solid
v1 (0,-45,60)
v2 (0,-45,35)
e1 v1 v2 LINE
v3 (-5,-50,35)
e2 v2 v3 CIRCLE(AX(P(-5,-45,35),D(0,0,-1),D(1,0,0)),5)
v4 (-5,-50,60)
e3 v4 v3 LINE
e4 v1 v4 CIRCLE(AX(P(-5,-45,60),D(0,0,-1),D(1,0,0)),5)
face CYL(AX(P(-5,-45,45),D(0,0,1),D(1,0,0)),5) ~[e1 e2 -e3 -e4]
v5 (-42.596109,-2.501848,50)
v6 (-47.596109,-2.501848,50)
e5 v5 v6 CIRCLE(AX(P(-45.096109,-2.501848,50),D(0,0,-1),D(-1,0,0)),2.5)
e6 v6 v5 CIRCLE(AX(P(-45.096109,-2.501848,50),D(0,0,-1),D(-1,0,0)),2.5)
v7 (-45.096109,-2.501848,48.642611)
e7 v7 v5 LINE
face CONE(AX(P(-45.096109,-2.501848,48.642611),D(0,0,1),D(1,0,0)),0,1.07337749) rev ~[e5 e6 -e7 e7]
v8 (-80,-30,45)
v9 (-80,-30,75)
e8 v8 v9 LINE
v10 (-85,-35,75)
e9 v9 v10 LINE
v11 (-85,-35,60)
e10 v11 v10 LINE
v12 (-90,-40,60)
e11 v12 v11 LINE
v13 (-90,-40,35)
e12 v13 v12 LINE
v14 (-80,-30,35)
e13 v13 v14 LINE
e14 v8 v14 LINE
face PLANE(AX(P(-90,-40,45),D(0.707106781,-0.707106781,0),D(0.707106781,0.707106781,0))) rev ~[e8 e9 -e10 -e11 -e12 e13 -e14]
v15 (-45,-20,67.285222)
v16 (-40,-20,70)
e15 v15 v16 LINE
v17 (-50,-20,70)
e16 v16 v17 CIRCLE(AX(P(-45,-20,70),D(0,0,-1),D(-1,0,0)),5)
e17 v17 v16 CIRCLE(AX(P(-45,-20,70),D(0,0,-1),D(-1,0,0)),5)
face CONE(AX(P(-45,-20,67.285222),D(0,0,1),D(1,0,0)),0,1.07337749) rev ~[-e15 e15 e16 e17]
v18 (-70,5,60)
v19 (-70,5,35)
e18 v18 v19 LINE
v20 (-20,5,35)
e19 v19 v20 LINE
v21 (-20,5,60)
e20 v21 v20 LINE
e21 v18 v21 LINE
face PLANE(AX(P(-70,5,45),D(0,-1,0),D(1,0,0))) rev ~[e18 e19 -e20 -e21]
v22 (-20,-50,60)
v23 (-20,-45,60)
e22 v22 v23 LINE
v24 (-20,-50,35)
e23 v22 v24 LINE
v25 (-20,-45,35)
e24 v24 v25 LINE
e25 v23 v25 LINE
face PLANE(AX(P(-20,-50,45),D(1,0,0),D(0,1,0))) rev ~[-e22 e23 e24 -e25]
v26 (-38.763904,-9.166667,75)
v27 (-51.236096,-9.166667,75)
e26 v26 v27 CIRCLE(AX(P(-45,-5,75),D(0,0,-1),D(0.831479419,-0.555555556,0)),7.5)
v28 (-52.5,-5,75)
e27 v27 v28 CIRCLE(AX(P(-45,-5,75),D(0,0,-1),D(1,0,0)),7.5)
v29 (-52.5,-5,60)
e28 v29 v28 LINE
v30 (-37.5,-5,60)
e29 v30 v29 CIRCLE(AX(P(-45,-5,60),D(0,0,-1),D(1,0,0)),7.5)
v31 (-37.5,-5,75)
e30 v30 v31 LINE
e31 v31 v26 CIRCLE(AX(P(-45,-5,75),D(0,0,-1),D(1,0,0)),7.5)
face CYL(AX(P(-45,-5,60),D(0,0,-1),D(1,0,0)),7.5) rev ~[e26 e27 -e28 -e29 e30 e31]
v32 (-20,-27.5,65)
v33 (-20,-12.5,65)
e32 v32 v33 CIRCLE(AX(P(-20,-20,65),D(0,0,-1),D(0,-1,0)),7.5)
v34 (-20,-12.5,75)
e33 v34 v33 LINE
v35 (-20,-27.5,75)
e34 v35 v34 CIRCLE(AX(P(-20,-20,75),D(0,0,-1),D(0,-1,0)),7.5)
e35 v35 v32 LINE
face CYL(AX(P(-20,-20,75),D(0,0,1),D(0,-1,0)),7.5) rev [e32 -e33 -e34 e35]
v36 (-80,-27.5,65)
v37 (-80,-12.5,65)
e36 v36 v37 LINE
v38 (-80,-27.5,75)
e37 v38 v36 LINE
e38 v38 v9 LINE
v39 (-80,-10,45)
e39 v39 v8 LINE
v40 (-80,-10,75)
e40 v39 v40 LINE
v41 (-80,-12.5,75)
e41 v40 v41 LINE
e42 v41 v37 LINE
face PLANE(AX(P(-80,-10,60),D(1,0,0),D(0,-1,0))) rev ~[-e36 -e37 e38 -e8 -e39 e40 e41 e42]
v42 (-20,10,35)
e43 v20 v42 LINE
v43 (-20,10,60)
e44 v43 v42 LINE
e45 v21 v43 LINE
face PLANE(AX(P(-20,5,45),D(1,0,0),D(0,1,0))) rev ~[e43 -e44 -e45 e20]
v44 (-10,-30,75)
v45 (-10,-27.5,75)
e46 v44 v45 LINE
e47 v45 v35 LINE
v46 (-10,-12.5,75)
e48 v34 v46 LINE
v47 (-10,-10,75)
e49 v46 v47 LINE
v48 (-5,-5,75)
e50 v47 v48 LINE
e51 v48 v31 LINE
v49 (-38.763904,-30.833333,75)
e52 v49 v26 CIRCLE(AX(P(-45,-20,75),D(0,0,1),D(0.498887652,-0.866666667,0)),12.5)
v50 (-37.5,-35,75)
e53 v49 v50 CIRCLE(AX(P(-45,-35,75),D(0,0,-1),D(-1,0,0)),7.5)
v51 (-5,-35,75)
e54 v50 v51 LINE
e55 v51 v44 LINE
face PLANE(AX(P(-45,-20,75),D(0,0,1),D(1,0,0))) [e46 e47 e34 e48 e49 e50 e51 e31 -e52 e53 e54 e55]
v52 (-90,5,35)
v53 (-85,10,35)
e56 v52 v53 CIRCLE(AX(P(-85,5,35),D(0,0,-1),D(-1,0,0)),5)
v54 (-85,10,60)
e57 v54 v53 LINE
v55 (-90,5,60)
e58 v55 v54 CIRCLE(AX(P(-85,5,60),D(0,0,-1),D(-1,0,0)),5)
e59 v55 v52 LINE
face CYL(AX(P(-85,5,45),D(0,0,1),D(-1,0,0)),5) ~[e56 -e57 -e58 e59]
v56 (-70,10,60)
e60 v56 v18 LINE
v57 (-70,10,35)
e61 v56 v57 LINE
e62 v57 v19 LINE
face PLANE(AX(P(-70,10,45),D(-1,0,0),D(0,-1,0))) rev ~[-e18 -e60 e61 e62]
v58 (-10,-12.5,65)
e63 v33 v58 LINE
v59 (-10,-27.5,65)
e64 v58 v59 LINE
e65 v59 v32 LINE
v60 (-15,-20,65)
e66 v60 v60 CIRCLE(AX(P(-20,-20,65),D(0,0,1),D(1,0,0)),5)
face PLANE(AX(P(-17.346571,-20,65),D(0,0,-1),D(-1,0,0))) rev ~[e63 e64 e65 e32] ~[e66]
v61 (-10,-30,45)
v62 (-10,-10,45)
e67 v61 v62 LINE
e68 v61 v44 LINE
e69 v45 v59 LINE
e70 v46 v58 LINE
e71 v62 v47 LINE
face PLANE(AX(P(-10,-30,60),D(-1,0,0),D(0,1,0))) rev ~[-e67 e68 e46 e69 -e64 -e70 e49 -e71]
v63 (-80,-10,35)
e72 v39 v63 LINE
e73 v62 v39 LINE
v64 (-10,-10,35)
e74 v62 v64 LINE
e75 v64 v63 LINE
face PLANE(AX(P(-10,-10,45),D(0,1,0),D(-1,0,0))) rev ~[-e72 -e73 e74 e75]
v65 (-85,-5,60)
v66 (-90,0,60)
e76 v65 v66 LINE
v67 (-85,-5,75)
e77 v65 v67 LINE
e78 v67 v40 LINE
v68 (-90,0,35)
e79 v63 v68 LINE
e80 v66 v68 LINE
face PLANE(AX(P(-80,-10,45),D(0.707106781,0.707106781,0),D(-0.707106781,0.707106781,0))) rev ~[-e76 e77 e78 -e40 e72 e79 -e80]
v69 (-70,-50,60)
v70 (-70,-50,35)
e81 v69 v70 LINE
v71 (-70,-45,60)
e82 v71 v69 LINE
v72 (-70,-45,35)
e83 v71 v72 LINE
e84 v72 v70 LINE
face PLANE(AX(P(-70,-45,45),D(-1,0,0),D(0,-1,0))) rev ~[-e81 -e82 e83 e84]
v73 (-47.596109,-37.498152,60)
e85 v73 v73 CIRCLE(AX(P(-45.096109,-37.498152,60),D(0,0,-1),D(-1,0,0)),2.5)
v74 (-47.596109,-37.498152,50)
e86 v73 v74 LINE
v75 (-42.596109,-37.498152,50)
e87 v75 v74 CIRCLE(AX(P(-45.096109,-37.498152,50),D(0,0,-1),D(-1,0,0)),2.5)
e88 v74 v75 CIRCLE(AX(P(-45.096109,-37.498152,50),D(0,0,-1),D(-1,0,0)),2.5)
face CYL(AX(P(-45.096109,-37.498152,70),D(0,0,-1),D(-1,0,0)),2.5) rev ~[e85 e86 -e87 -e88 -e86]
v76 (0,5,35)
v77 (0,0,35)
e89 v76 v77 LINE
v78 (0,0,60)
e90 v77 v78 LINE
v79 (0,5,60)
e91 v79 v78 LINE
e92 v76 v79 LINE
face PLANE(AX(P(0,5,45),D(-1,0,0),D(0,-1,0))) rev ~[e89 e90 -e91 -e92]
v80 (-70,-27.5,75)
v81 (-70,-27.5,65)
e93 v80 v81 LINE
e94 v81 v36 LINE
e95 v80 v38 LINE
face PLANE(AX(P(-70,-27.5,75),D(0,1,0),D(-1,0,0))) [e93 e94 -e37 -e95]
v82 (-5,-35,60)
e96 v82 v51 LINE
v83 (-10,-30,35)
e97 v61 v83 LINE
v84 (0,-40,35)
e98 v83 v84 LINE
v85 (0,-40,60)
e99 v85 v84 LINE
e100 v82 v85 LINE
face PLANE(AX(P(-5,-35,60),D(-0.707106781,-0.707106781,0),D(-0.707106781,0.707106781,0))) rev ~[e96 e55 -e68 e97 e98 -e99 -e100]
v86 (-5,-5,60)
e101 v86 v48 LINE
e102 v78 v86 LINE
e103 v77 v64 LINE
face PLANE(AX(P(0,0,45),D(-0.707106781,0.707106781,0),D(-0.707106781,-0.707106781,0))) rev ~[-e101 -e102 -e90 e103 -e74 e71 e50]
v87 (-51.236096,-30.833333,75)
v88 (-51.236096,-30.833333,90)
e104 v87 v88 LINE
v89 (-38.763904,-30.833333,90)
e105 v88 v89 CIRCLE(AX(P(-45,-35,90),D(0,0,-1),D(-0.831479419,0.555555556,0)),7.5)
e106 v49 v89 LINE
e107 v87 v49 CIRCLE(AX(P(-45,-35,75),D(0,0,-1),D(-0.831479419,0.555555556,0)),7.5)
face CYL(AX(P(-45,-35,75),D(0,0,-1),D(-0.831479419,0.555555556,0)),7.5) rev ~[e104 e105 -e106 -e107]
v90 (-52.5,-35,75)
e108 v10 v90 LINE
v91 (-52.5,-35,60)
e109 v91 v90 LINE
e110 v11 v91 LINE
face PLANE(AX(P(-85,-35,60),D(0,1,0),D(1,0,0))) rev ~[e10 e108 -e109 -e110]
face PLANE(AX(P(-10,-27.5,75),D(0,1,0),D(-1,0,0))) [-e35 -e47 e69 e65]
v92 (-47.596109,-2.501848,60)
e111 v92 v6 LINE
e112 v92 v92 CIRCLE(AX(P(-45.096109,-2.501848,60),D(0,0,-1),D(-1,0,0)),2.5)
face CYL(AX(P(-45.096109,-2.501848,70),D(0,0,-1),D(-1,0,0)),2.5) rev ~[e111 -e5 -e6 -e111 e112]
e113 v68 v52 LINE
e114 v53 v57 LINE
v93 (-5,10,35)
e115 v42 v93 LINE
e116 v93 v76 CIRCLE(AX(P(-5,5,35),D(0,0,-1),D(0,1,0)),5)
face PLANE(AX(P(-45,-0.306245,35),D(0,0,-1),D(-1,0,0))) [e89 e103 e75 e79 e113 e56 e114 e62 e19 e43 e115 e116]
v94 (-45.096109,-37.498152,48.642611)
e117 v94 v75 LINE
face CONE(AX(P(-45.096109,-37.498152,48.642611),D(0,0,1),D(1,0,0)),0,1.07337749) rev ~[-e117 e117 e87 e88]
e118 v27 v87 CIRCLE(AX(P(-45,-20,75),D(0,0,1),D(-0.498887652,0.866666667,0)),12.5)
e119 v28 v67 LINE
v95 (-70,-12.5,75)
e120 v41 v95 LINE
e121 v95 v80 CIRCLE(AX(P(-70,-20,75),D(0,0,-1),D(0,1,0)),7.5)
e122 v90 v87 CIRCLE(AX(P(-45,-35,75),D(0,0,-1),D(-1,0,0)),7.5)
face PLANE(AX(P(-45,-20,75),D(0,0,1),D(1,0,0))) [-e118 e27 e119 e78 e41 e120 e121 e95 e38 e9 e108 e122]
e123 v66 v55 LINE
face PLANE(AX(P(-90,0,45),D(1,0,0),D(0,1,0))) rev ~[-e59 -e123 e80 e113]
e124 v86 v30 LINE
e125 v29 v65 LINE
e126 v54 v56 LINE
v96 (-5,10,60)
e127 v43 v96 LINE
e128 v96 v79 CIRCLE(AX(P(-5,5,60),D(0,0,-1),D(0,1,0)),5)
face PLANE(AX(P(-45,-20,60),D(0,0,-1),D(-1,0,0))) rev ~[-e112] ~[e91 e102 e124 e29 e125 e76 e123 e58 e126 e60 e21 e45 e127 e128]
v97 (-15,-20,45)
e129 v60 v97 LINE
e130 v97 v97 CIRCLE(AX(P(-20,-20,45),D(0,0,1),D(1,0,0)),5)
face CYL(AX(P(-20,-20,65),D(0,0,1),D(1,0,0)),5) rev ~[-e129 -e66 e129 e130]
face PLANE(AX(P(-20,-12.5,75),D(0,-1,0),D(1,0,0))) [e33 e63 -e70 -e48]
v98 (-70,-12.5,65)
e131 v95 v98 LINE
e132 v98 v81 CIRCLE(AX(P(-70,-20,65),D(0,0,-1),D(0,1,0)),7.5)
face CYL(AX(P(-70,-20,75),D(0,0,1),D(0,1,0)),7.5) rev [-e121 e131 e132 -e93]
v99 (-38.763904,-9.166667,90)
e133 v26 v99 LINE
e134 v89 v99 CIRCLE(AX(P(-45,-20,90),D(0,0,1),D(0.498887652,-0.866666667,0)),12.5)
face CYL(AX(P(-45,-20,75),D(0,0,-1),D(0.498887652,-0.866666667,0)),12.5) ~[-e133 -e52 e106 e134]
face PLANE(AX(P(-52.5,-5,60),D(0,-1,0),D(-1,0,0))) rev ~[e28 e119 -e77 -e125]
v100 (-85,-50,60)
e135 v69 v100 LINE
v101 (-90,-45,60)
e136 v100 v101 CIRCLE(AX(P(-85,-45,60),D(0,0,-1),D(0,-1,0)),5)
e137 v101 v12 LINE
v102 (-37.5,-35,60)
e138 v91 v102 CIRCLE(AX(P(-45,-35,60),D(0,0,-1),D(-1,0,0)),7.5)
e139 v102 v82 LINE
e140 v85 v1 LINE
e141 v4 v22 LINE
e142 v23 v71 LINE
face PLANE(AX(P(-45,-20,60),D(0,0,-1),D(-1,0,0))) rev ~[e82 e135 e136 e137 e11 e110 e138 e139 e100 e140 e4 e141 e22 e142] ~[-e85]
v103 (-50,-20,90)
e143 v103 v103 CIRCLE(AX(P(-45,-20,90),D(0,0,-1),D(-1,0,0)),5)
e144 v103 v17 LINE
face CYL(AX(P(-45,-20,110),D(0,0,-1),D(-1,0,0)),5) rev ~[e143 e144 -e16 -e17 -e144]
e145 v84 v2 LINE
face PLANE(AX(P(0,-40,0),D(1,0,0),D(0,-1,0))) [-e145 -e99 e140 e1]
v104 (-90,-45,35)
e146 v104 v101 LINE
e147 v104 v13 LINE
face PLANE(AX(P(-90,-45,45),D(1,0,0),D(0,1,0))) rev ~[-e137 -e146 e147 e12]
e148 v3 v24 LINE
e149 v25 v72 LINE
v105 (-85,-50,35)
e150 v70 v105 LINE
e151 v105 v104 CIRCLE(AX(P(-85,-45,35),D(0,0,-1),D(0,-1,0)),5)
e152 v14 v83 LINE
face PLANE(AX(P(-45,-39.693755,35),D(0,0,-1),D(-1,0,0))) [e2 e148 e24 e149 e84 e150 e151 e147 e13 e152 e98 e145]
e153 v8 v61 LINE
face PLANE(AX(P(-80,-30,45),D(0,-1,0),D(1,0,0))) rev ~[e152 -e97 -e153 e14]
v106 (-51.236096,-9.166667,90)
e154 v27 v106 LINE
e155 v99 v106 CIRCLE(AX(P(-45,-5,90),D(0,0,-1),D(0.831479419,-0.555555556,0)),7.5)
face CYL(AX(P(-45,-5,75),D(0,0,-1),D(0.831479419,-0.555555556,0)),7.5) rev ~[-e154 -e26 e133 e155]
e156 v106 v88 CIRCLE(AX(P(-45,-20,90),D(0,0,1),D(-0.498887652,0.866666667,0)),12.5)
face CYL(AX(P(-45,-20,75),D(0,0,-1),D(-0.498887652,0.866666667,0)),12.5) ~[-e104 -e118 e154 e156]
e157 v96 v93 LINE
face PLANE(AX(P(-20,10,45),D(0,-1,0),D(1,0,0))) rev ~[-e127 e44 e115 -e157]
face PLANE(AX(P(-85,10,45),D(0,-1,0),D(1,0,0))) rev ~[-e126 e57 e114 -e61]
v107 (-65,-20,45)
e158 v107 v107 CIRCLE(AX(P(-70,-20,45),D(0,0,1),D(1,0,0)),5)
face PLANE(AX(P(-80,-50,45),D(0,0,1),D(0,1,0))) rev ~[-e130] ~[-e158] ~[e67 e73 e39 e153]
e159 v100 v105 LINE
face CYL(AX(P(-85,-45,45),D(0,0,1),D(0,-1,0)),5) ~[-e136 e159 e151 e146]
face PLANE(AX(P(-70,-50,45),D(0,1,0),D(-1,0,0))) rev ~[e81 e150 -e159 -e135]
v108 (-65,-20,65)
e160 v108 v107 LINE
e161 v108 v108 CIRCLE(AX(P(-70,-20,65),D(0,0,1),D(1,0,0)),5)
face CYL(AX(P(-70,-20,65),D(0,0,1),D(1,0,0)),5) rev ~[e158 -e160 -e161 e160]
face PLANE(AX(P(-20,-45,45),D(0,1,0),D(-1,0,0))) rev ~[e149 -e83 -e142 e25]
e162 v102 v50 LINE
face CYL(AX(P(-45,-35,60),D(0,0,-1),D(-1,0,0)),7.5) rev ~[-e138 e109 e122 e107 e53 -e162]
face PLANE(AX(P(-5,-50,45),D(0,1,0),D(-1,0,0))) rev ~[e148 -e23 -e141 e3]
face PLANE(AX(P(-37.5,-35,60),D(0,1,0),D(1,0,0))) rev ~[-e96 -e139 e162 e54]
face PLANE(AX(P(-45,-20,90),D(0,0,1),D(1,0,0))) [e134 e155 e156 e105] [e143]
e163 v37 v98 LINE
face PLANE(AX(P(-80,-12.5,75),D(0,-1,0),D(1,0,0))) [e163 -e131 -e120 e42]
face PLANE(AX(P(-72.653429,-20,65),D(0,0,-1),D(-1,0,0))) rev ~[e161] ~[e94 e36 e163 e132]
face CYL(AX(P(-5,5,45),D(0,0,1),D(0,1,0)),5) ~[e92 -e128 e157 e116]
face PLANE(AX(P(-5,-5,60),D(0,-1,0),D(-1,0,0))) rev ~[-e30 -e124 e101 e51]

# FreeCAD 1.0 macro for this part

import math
import FreeCAD as App
import Part
import Sketcher
from FreeCAD import Vector
Q = App.Units.Quantity

doc = App.newDocument("Part")
body = doc.addObject("PartDesign::Body", "Body")

# Sketch on XY plane
sketch1 = body.newObject("Sketcher::SketchObject", "Sketch")
sketch1.AttachmentSupport = (doc.getObject("XY_Plane"), [""])
sketch1.MapMode = "FlatFace"
sketch1.addGeometry([
    Part.LineSegment(Vector(-90, 5, 0), Vector(-90, 0, 0)),  # 0
    Part.LineSegment(Vector(-90, 0, 0), Vector(-80, -10, 0)),  # 1
    Part.LineSegment(Vector(-80, -10, 0), Vector(-80, -30, 0)),  # 2
    Part.LineSegment(Vector(-80, -30, 0), Vector(-90, -40, 0)),  # 3
    Part.LineSegment(Vector(-90, -40, 0), Vector(-90, -45, 0)),  # 4
    Part.ArcOfCircle(Part.Circle(Vector(-85, -45, 0), Vector(0, 0, 1), 5), math.radians(180), math.radians(270)),  # 5
    Part.LineSegment(Vector(-85, -50, 0), Vector(-70, -50, 0)),  # 6
    Part.LineSegment(Vector(-70, -50, 0), Vector(-70, -45, 0)),  # 7
    Part.LineSegment(Vector(-70, -45, 0), Vector(-20, -45, 0)),  # 8
    Part.LineSegment(Vector(-20, -45, 0), Vector(-20, -50, 0)),  # 9
    Part.LineSegment(Vector(-20, -50, 0), Vector(-5, -50, 0)),  # 10
    Part.ArcOfCircle(Part.Circle(Vector(-5, -45, 0), Vector(0, 0, 1), 5), math.radians(-90), math.radians(0)),  # 11
    Part.LineSegment(Vector(0, -45, 0), Vector(0, -40, 0)),  # 12
    Part.LineSegment(Vector(0, -40, 0), Vector(-10, -30, 0)),  # 13
    Part.LineSegment(Vector(-10, -30, 0), Vector(-10, -10, 0)),  # 14
    Part.LineSegment(Vector(-10, -10, 0), Vector(0, 0, 0)),  # 15
    Part.LineSegment(Vector(0, 0, 0), Vector(0, 5, 0)),  # 16
    Part.ArcOfCircle(Part.Circle(Vector(-5, 5, 0), Vector(0, 0, 1), 5), math.radians(0), math.radians(90)),  # 17
    Part.LineSegment(Vector(-5, 10, 0), Vector(-20, 10, 0)),  # 18
    Part.LineSegment(Vector(-20, 10, 0), Vector(-20, 5, 0)),  # 19
    Part.LineSegment(Vector(-20, 5, 0), Vector(-70, 5, 0)),  # 20
    Part.LineSegment(Vector(-70, 5, 0), Vector(-70, 10, 0)),  # 21
    Part.LineSegment(Vector(-70, 10, 0), Vector(-85, 10, 0)),  # 22
    Part.ArcOfCircle(Part.Circle(Vector(-85, 5, 0), Vector(0, 0, 1), 5), math.radians(90), math.radians(180)),  # 23
], False)
sketch1.addConstraint([
    Sketcher.Constraint("Coincident", 0, 2, 1, 1),
    Sketcher.Constraint("Coincident", 1, 2, 2, 1),
    Sketcher.Constraint("Coincident", 2, 2, 3, 1),
    Sketcher.Constraint("Coincident", 3, 2, 4, 1),
    Sketcher.Constraint("Tangent", 4, 2, 5, 1),
    Sketcher.Constraint("Tangent", 5, 2, 6, 1),
    Sketcher.Constraint("Coincident", 6, 2, 7, 1),
    Sketcher.Constraint("Coincident", 7, 2, 8, 1),
    Sketcher.Constraint("Coincident", 8, 2, 9, 1),
    Sketcher.Constraint("Coincident", 9, 2, 10, 1),
    Sketcher.Constraint("Tangent", 10, 2, 11, 1),
    Sketcher.Constraint("Tangent", 11, 2, 12, 1),
    Sketcher.Constraint("Coincident", 12, 2, 13, 1),
    Sketcher.Constraint("Coincident", 13, 2, 14, 1),
    Sketcher.Constraint("Coincident", 14, 2, 15, 1),
    Sketcher.Constraint("Coincident", 15, 2, 16, 1),
    Sketcher.Constraint("Tangent", 16, 2, 17, 1),
    Sketcher.Constraint("Tangent", 17, 2, 18, 1),
    Sketcher.Constraint("Coincident", 18, 2, 19, 1),
    Sketcher.Constraint("Coincident", 19, 2, 20, 1),
    Sketcher.Constraint("Coincident", 20, 2, 21, 1),
    Sketcher.Constraint("Coincident", 21, 2, 22, 1),
    Sketcher.Constraint("Tangent", 22, 2, 23, 1),
    Sketcher.Constraint("Tangent", 23, 2, 0, 1),
    Sketcher.Constraint("Vertical", 0),
    Sketcher.Constraint("Vertical", 2),
    Sketcher.Constraint("Vertical", 4),
    Sketcher.Constraint("Horizontal", 6),
    Sketcher.Constraint("Vertical", 7),
    Sketcher.Constraint("Horizontal", 8),
    Sketcher.Constraint("Vertical", 9),
    Sketcher.Constraint("Horizontal", 10),
    Sketcher.Constraint("Vertical", 12),
    Sketcher.Constraint("Vertical", 14),
    Sketcher.Constraint("Vertical", 16),
    Sketcher.Constraint("Horizontal", 18),
    Sketcher.Constraint("Vertical", 19),
    Sketcher.Constraint("Horizontal", 20),
    Sketcher.Constraint("Vertical", 21),
    Sketcher.Constraint("Horizontal", 22),
    Sketcher.Constraint("Coincident", 15, 2, -1, 1),
    Sketcher.Constraint("Equal", 5, 11),
    Sketcher.Constraint("Equal", 11, 17),
    Sketcher.Constraint("Equal", 17, 23),
    Sketcher.Constraint("PointOnObject", 0, 2, -1),
    Sketcher.Constraint("PointOnObject", 11, 2, -2),
    Sketcher.Constraint("Perpendicular", 1, 3),
    Sketcher.Constraint("Perpendicular", 3, 13),
    Sketcher.Constraint("Perpendicular", 13, 15),
    Sketcher.Constraint("Horizontal", 5, 3, 11, 3),
    Sketcher.Constraint("Horizontal", 17, 3, 23, 3),
    Sketcher.Constraint("Horizontal", 4, 2, 7, 2),
    Sketcher.Constraint("Horizontal", 3, 2, 12, 2),
    Sketcher.Constraint("Horizontal", 2, 2, 13, 2),
    Sketcher.Constraint("Horizontal", 1, 2, 14, 2),
    Sketcher.Constraint("Horizontal", 16, 2, 19, 2),
    Sketcher.Constraint("Vertical", 5, 3, 23, 3),
    Sketcher.Constraint("Vertical", 9, 2, 18, 2),
    Sketcher.Constraint("Vertical", 7, 2, 20, 2),
    Sketcher.Constraint("Equal", 6, 10),
    Sketcher.Constraint("Equal", 0, 4),
    Sketcher.Constraint("Equal", 4, 7),
    Sketcher.Constraint("Radius", 5, Q("5 mm")),
    Sketcher.Constraint("DistanceX", 6, 1, 6, 2, Q("15 mm")),
    Sketcher.Constraint("DistanceX", 8, 1, 8, 2, Q("50 mm")),
    Sketcher.Constraint("DistanceY", 2, 2, 2, 1, Q("20 mm")),
    Sketcher.Constraint("DistanceY", 5, 3, -1, 1, Q("45 mm")),
])
pad1 = body.newObject("PartDesign::Pad", "Pad")
pad1.Profile = sketch1
pad1.Length = 60

# Sketch on YZ plane
sketch2 = body.newObject("Sketcher::SketchObject", "Sketch001")
sketch2.AttachmentSupport = (doc.getObject("YZ_Plane"), [""])
sketch2.MapMode = "FlatFace"
sketch2.addGeometry([
    Part.LineSegment(Vector(-40, 45, 0), Vector(-50, 45, 0)),
    Part.LineSegment(Vector(-50, 45, 0), Vector(-50, 15, 0)),
    Part.LineSegment(Vector(-50, 15, 0), Vector(-40, 15, 0)),
    Part.LineSegment(Vector(-40, 15, 0), Vector(-40, 45, 0)),
], False)
sketch2.addConstraint([
    Sketcher.Constraint("Coincident", 0, 2, 1, 1),
    Sketcher.Constraint("Coincident", 1, 2, 2, 1),
    Sketcher.Constraint("Coincident", 2, 2, 3, 1),
    Sketcher.Constraint("Coincident", 3, 2, 0, 1),
    Sketcher.Constraint("Horizontal", 0),
    Sketcher.Constraint("Vertical", 1),
    Sketcher.Constraint("Horizontal", 2),
    Sketcher.Constraint("Vertical", 3),
    Sketcher.Constraint("DistanceX", 0, 2, 0, 1, Q("10 mm")),
    Sketcher.Constraint("DistanceY", 1, 2, 1, 1, Q("30 mm")),
    Sketcher.Constraint("DistanceX", 0, 2, -1, 1, Q("50 mm")),
    Sketcher.Constraint("DistanceY", -1, 1, 0, 2, Q("45 mm")),
])
pocket1 = body.newObject("PartDesign::Pocket", "Pocket")
pocket1.Profile = sketch2
pocket1.Length = 253

# Sketch on XY plane
sketch3 = body.newObject("Sketcher::SketchObject", "Sketch002")
sketch3.AttachmentSupport = (doc.getObject("XY_Plane"), [""])
sketch3.MapMode = "FlatFace"
sketch3.AttachmentOffset = App.Placement(Vector(0, 0, 60), App.Rotation())
sketch3.addGeometry([
    Part.LineSegment(Vector(-85, -5, 0), Vector(-80, -10, 0)),  # 0
    Part.LineSegment(Vector(-80, -10, 0), Vector(-80, -30, 0)),  # 1
    Part.LineSegment(Vector(-80, -30, 0), Vector(-85, -35, 0)),  # 2
    Part.LineSegment(Vector(-85, -35, 0), Vector(-52, -35, 0)),  # 3
    Part.ArcOfCircle(Part.Circle(Vector(-45, -35, 0), Vector(0, 0, 1), 8), math.radians(0), math.radians(180)),  # 4
    Part.LineSegment(Vector(-38, -35, 0), Vector(-5, -35, 0)),  # 5
    Part.LineSegment(Vector(-5, -35, 0), Vector(-10, -30, 0)),  # 6
    Part.LineSegment(Vector(-10, -30, 0), Vector(-10, -10, 0)),  # 7
    Part.LineSegment(Vector(-10, -10, 0), Vector(-5, -5, 0)),  # 8
    Part.LineSegment(Vector(-5, -5, 0), Vector(-38, -5, 0)),  # 9
    Part.ArcOfCircle(Part.Circle(Vector(-45, -5, 0), Vector(0, 0, 1), 8), math.radians(180), math.radians(360)),  # 10
    Part.LineSegment(Vector(-52, -5, 0), Vector(-85, -5, 0)),  # 11
], False)
sketch3.addConstraint([
    Sketcher.Constraint("Coincident", 0, 2, 1, 1),
    Sketcher.Constraint("Coincident", 1, 2, 2, 1),
    Sketcher.Constraint("Coincident", 2, 2, 3, 1),
    Sketcher.Constraint("Coincident", 3, 2, 4, 2),
    Sketcher.Constraint("Coincident", 4, 1, 5, 1),
    Sketcher.Constraint("Coincident", 5, 2, 6, 1),
    Sketcher.Constraint("Coincident", 6, 2, 7, 1),
    Sketcher.Constraint("Coincident", 7, 2, 8, 1),
    Sketcher.Constraint("Coincident", 8, 2, 9, 1),
    Sketcher.Constraint("Coincident", 9, 2, 10, 2),
    Sketcher.Constraint("Coincident", 10, 1, 11, 1),
    Sketcher.Constraint("Coincident", 11, 2, 0, 1),
    Sketcher.Constraint("Vertical", 1),
    Sketcher.Constraint("Horizontal", 3),
    Sketcher.Constraint("Horizontal", 5),
    Sketcher.Constraint("Vertical", 7),
    Sketcher.Constraint("Horizontal", 9),
    Sketcher.Constraint("Horizontal", 11),
    Sketcher.Constraint("Equal", 4, 10),
    Sketcher.Constraint("Perpendicular", 0, 2),
    Sketcher.Constraint("Perpendicular", 2, 6),
    Sketcher.Constraint("Perpendicular", 6, 8),
    Sketcher.Constraint("Horizontal", 4, 3, 2, 2),
    Sketcher.Constraint("Horizontal", 3, 2, 4, 1),
    Sketcher.Constraint("Horizontal", 1, 2, 6, 2),
    Sketcher.Constraint("Horizontal", 0, 2, 7, 2),
    Sketcher.Constraint("Horizontal", 10, 3, 8, 2),
    Sketcher.Constraint("Horizontal", 9, 2, 10, 1),
    Sketcher.Constraint("Vertical", 4, 3, 10, 3),
    Sketcher.Constraint("Vertical", 5, 2, 8, 2),
    Sketcher.Constraint("Vertical", 2, 2, 11, 2),
    Sketcher.Constraint("Equal", 3, 5),
    Sketcher.Constraint("Radius", 4, Q("7.5 mm")),
    Sketcher.Constraint("DistanceY", 1, 2, 1, 1, Q("20 mm")),
    Sketcher.Constraint("DistanceX", 3, 1, 3, 2, Q("32.5 mm")),
    Sketcher.Constraint("DistanceX", 4, 3, -1, 1, Q("45 mm")),
    Sketcher.Constraint("DistanceY", 4, 3, -1, 1, Q("35 mm")),
    Sketcher.Constraint("DistanceY", 10, 3, -1, 1, Q("5 mm")),
])
pad2 = body.newObject("PartDesign::Pad", "Pad001")
pad2.Profile = sketch3
pad2.Length = 15

# Sketch on XY plane
sketch4 = body.newObject("Sketcher::SketchObject", "Sketch003")
sketch4.AttachmentSupport = (doc.getObject("XY_Plane"), [""])
sketch4.MapMode = "FlatFace"
sketch4.AttachmentOffset = App.Placement(Vector(0, 0, 75), App.Rotation())
sketch4.addGeometry([
    Part.LineSegment(Vector(-70, -12, 0), Vector(-80, -12, 0)),  # 0
    Part.LineSegment(Vector(-80, -12, 0), Vector(-80, -28, 0)),  # 1
    Part.LineSegment(Vector(-80, -28, 0), Vector(-70, -28, 0)),  # 2
    Part.ArcOfCircle(Part.Circle(Vector(-70, -20, 0), Vector(0, 0, 1), 8), math.radians(-90), math.radians(90)),  # 3
    Part.LineSegment(Vector(-10, -28, 0), Vector(-10, -12, 0)),  # 4
    Part.LineSegment(Vector(-10, -12, 0), Vector(-20, -12, 0)),  # 5
    Part.ArcOfCircle(Part.Circle(Vector(-20, -20, 0), Vector(0, 0, 1), 8), math.radians(90), math.radians(270)),  # 6
    Part.LineSegment(Vector(-20, -28, 0), Vector(-10, -28, 0)),  # 7
], False)
sketch4.addConstraint([
    Sketcher.Constraint("Coincident", 0, 2, 1, 1),
    Sketcher.Constraint("Coincident", 1, 2, 2, 1),
    Sketcher.Constraint("Tangent", 2, 2, 3, 1),
    Sketcher.Constraint("Tangent", 3, 2, 0, 1),
    Sketcher.Constraint("Coincident", 4, 2, 5, 1),
    Sketcher.Constraint("Tangent", 5, 2, 6, 1),
    Sketcher.Constraint("Tangent", 6, 2, 7, 1),
    Sketcher.Constraint("Coincident", 7, 2, 4, 1),
    Sketcher.Constraint("Horizontal", 0),
    Sketcher.Constraint("Vertical", 1),
    Sketcher.Constraint("Horizontal", 2),
    Sketcher.Constraint("Vertical", 4),
    Sketcher.Constraint("Horizontal", 5),
    Sketcher.Constraint("Horizontal", 7),
    Sketcher.Constraint("Equal", 3, 6),
    Sketcher.Constraint("Horizontal", 3, 3, 6, 3),
    Sketcher.Constraint("Equal", 2, 5),
    Sketcher.Constraint("Radius", 3, Q("7.5 mm")),
    Sketcher.Constraint("DistanceX", 0, 2, 0, 1, Q("10 mm")),
    Sketcher.Constraint("DistanceX", 3, 3, -1, 1, Q("70 mm")),
    Sketcher.Constraint("DistanceY", 3, 3, -1, 1, Q("20 mm")),
    Sketcher.Constraint("DistanceX", 6, 3, -1, 1, Q("20 mm")),
])
pocket2 = body.newObject("PartDesign::Pocket", "Pocket001")
pocket2.Profile = sketch4
pocket2.Length = 10

# Sketch on XY plane
sketch5 = body.newObject("Sketcher::SketchObject", "Sketch004")
sketch5.AttachmentSupport = (doc.getObject("XY_Plane"), [""])
sketch5.MapMode = "FlatFace"
sketch5.AttachmentOffset = App.Placement(Vector(0, 0, 65), App.Rotation())
sketch5.addGeometry([
    Part.Circle(Vector(-20, -20, 0), Vector(0, 0, 1), 5),
    Part.Circle(Vector(-70, -20, 0), Vector(0, 0, 1), 5),
], False)
sketch5.addConstraint([
    Sketcher.Constraint("Equal", 0, 1),
    Sketcher.Constraint("Horizontal", 0, 3, 1, 3),
    Sketcher.Constraint("Diameter", 0, Q("10 mm")),
    Sketcher.Constraint("DistanceX", 0, 3, -1, 1, Q("20 mm")),
    Sketcher.Constraint("DistanceY", 0, 3, -1, 1, Q("20 mm")),
    Sketcher.Constraint("DistanceX", 1, 3, -1, 1, Q("70 mm")),
])
pocket3 = body.newObject("PartDesign::Pocket", "Pocket002")
pocket3.Profile = sketch5
pocket3.Length = 124

# Sketch on XY plane
sketch6 = body.newObject("Sketcher::SketchObject", "Sketch005")
sketch6.AttachmentSupport = (doc.getObject("XY_Plane"), [""])
sketch6.MapMode = "FlatFace"
sketch6.AttachmentOffset = App.Placement(Vector(0, 0, 75), App.Rotation())
sketch6.addGeometry([
    Part.ArcOfCircle(Part.Circle(Vector(-45, -20, 0), Vector(0, 0, 1), 12), math.radians(120), math.radians(240)),
    Part.ArcOfCircle(Part.Circle(Vector(-45, -35, 0), Vector(0, 0, 1), 8), math.radians(34), math.radians(146)),
    Part.ArcOfCircle(Part.Circle(Vector(-45, -20, 0), Vector(0, 0, 1), 12), math.radians(-60), math.radians(60)),
    Part.ArcOfCircle(Part.Circle(Vector(-45, -5, 0), Vector(0, 0, 1), 8), math.radians(-146), math.radians(-34)),
], False)
sketch6.addConstraint([
    Sketcher.Constraint("Coincident", 0, 2, 1, 2),
    Sketcher.Constraint("Coincident", 1, 1, 2, 1),
    Sketcher.Constraint("Coincident", 2, 2, 3, 2),
    Sketcher.Constraint("Coincident", 3, 1, 0, 1),
    Sketcher.Constraint("Coincident", 2, 3, 0, 3),
    Sketcher.Constraint("Equal", 0, 2),
    Sketcher.Constraint("Equal", 1, 3),
    Sketcher.Constraint("Horizontal", 0, 2, 1, 1),
    Sketcher.Constraint("Horizontal", 2, 2, 3, 1),
    Sketcher.Constraint("Vertical", 1, 1, 2, 2),
    Sketcher.Constraint("Radius", 0, Q("12.5 mm")),
    Sketcher.Constraint("Radius", 1, Q("7.5 mm")),
    Sketcher.Constraint("DistanceX", 0, 3, -1, 1, Q("45 mm")),
    Sketcher.Constraint("DistanceY", 0, 3, -1, 1, Q("20 mm")),
    Sketcher.Constraint("DistanceY", 1, 3, -1, 1, Q("35 mm")),
])
pad3 = body.newObject("PartDesign::Pad", "Pad002")
pad3.Profile = sketch6
pad3.Length = 15

# Sketch on YZ plane
sketch7 = body.newObject("Sketcher::SketchObject", "Sketch006")
sketch7.AttachmentSupport = (doc.getObject("YZ_Plane"), [""])
sketch7.MapMode = "FlatFace"
sketch7.AttachmentOffset = App.Placement(Vector(0, 0, -80), App.Rotation())
sketch7.addGeometry([
    Part.LineSegment(Vector(10, 0, 0), Vector(-50, 0, 0)),
    Part.LineSegment(Vector(-50, 0, 0), Vector(-50, 45, 0)),
    Part.LineSegment(Vector(-50, 45, 0), Vector(10, 45, 0)),
    Part.LineSegment(Vector(10, 45, 0), Vector(10, 0, 0)),
], False)
sketch7.addConstraint([
    Sketcher.Constraint("Coincident", 0, 2, 1, 1),
    Sketcher.Constraint("Coincident", 1, 2, 2, 1),
    Sketcher.Constraint("Coincident", 2, 2, 3, 1),
    Sketcher.Constraint("Coincident", 3, 2, 0, 1),
    Sketcher.Constraint("Horizontal", 0),
    Sketcher.Constraint("Vertical", 1),
    Sketcher.Constraint("Horizontal", 2),
    Sketcher.Constraint("Vertical", 3),
    Sketcher.Constraint("PointOnObject", 0, 2, -1),
    Sketcher.Constraint("DistanceX", 0, 2, 0, 1, Q("60 mm")),
    Sketcher.Constraint("DistanceY", 1, 1, 1, 2, Q("45 mm")),
    Sketcher.Constraint("DistanceX", 0, 2, -1, 1, Q("50 mm")),
])
pocket4 = body.newObject("PartDesign::Pocket", "Pocket003")
pocket4.Profile = sketch7
pocket4.Length = 180
pocket4.Midplane = True

# Sketch on XY plane
sketch8 = body.newObject("Sketcher::SketchObject", "Sketch007")
sketch8.AttachmentSupport = (doc.getObject("XY_Plane"), [""])
sketch8.MapMode = "FlatFace"
sketch8.AttachmentOffset = App.Placement(Vector(0, 0, 45), App.Rotation())
sketch8.addGeometry([
    Part.LineSegment(Vector(-10, -10, 0), Vector(-80, -10, 0)),  # 0
    Part.LineSegment(Vector(-80, -10, 0), Vector(-90, 0, 0)),  # 1
    Part.LineSegment(Vector(-90, 0, 0), Vector(-90, 5, 0)),  # 2
    Part.ArcOfCircle(Part.Circle(Vector(-85, 5, 0), Vector(0, 0, 1), 5), math.radians(90), math.radians(180)),  # 3
    Part.LineSegment(Vector(-85, 10, 0), Vector(-70, 10, 0)),  # 4
    Part.LineSegment(Vector(-70, 10, 0), Vector(-70, 5, 0)),  # 5
    Part.LineSegment(Vector(-70, 5, 0), Vector(-20, 5, 0)),  # 6
    Part.LineSegment(Vector(-20, 5, 0), Vector(-20, 10, 0)),  # 7
    Part.LineSegment(Vector(-20, 10, 0), Vector(-5, 10, 0)),  # 8
    Part.ArcOfCircle(Part.Circle(Vector(-5, 5, 0), Vector(0, 0, 1), 5), math.radians(0), math.radians(90)),  # 9
    Part.LineSegment(Vector(0, 5, 0), Vector(0, 0, 0)),  # 10
    Part.LineSegment(Vector(0, 0, 0), Vector(-10, -10, 0)),  # 11
    Part.LineSegment(Vector(-80, -30, 0), Vector(-10, -30, 0)),  # 12
    Part.LineSegment(Vector(-10, -30, 0), Vector(0, -40, 0)),  # 13
    Part.LineSegment(Vector(0, -40, 0), Vector(0, -45, 0)),  # 14
    Part.ArcOfCircle(Part.Circle(Vector(-5, -45, 0), Vector(0, 0, 1), 5), math.radians(-90), math.radians(0)),  # 15
    Part.LineSegment(Vector(-5, -50, 0), Vector(-20, -50, 0)),  # 16
    Part.LineSegment(Vector(-20, -50, 0), Vector(-20, -45, 0)),  # 17
    Part.LineSegment(Vector(-20, -45, 0), Vector(-70, -45, 0)),  # 18
    Part.LineSegment(Vector(-70, -45, 0), Vector(-70, -50, 0)),  # 19
    Part.LineSegment(Vector(-70, -50, 0), Vector(-85, -50, 0)),  # 20
    Part.ArcOfCircle(Part.Circle(Vector(-85, -45, 0), Vector(0, 0, 1), 5), math.radians(180), math.radians(270)),  # 21
    Part.LineSegment(Vector(-90, -45, 0), Vector(-90, -40, 0)),  # 22
    Part.LineSegment(Vector(-90, -40, 0), Vector(-80, -30, 0)),  # 23
], False)
sketch8.addConstraint([
    Sketcher.Constraint("Coincident", 0, 2, 1, 1),
    Sketcher.Constraint("Coincident", 1, 2, 2, 1),
    Sketcher.Constraint("Tangent", 2, 2, 3, 2),
    Sketcher.Constraint("Tangent", 3, 1, 4, 1),
    Sketcher.Constraint("Coincident", 4, 2, 5, 1),
    Sketcher.Constraint("Coincident", 5, 2, 6, 1),
    Sketcher.Constraint("Coincident", 6, 2, 7, 1),
    Sketcher.Constraint("Coincident", 7, 2, 8, 1),
    Sketcher.Constraint("Tangent", 8, 2, 9, 2),
    Sketcher.Constraint("Tangent", 9, 1, 10, 1),
    Sketcher.Constraint("Coincident", 10, 2, 11, 1),
    Sketcher.Constraint("Coincident", 11, 2, 0, 1),
    Sketcher.Constraint("Coincident", 12, 2, 13, 1),
    Sketcher.Constraint("Coincident", 13, 2, 14, 1),
    Sketcher.Constraint("Tangent", 14, 2, 15, 2),
    Sketcher.Constraint("Tangent", 15, 1, 16, 1),
    Sketcher.Constraint("Coincident", 16, 2, 17, 1),
    Sketcher.Constraint("Coincident", 17, 2, 18, 1),
    Sketcher.Constraint("Coincident", 18, 2, 19, 1),
    Sketcher.Constraint("Coincident", 19, 2, 20, 1),
    Sketcher.Constraint("Tangent", 20, 2, 21, 2),
    Sketcher.Constraint("Tangent", 21, 1, 22, 1),
    Sketcher.Constraint("Coincident", 22, 2, 23, 1),
    Sketcher.Constraint("Coincident", 23, 2, 12, 1),
    Sketcher.Constraint("Horizontal", 0),
    Sketcher.Constraint("Vertical", 2),
    Sketcher.Constraint("Horizontal", 4),
    Sketcher.Constraint("Vertical", 5),
    Sketcher.Constraint("Horizontal", 6),
    Sketcher.Constraint("Vertical", 7),
    Sketcher.Constraint("Horizontal", 8),
    Sketcher.Constraint("Vertical", 10),
    Sketcher.Constraint("Horizontal", 12),
    Sketcher.Constraint("Vertical", 14),
    Sketcher.Constraint("Horizontal", 16),
    Sketcher.Constraint("Vertical", 17),
    Sketcher.Constraint("Horizontal", 18),
    Sketcher.Constraint("Vertical", 19),
    Sketcher.Constraint("Horizontal", 20),
    Sketcher.Constraint("Vertical", 22),
    Sketcher.Constraint("Coincident", 10, 2, -1, 1),
    Sketcher.Constraint("Equal", 3, 9),
    Sketcher.Constraint("Equal", 9, 15),
    Sketcher.Constraint("Equal", 15, 21),
    Sketcher.Constraint("PointOnObject", 1, 2, -1),
    Sketcher.Constraint("PointOnObject", 13, 2, -2),
    Sketcher.Constraint("Perpendicular", 1, 11),
    Sketcher.Constraint("Perpendicular", 11, 13),
    Sketcher.Constraint("Perpendicular", 13, 23),
    Sketcher.Constraint("Horizontal", 3, 3, 9, 3),
    Sketcher.Constraint("Horizontal", 15, 3, 21, 3),
    Sketcher.Constraint("Horizontal", 2, 2, 5, 2),
    Sketcher.Constraint("Horizontal", 14, 2, 17, 2),
    Sketcher.Constraint("Horizontal", 13, 2, 22, 2),
    Sketcher.Constraint("Vertical", 3, 3, 21, 3),
    Sketcher.Constraint("Vertical", 11, 2, 12, 2),
    Sketcher.Constraint("Vertical", 7, 2, 16, 2),
    Sketcher.Constraint("Vertical", 5, 2, 18, 2),
    Sketcher.Constraint("Vertical", 0, 2, 23, 2),
    Sketcher.Constraint("Equal", 4, 8),
    Sketcher.Constraint("Equal", 2, 5),
    Sketcher.Constraint("Equal", 10, 14),
    Sketcher.Constraint("Radius", 3, Q("5 mm")),
    Sketcher.Constraint("DistanceX", 0, 2, 0, 1, Q("70 mm")),
    Sketcher.Constraint("DistanceX", 4, 1, 4, 2, Q("15 mm")),
    Sketcher.Constraint("DistanceX", 6, 1, 6, 2, Q("50 mm")),
    Sketcher.Constraint("DistanceY", 15, 3, -1, 1, Q("45 mm")),
])
pad4 = body.newObject("PartDesign::Pad", "Pad003")
pad4.Profile = sketch8
pad4.Length = 10
pad4.Reversed = True

# Sketch on XY plane
sketch9 = body.newObject("Sketcher::SketchObject", "Sketch008")
sketch9.AttachmentSupport = (doc.getObject("XY_Plane"), [""])
sketch9.MapMode = "FlatFace"
sketch9.AttachmentOffset = App.Placement(Vector(0, 0, 60), App.Rotation())
sketch9.addGeometry([
    Part.Circle(Vector(-45.1, -2.5, 0), Vector(0, 0, 1), 2.5),
    Part.Circle(Vector(-45.1, -37.5, 0), Vector(0, 0, 1), 2.5),
], False)
sketch9.addConstraint([
    Sketcher.Constraint("Equal", 0, 1),
    Sketcher.Constraint("Vertical", 0, 3, 1, 3),
    Sketcher.Constraint("Diameter", 0, Q("5 mm")),
    Sketcher.Constraint("DistanceX", 0, 3, -1, 1, Q("45.096109 mm")),
    Sketcher.Constraint("DistanceY", 0, 3, -1, 1, Q("2.501848 mm")),
    Sketcher.Constraint("DistanceY", 1, 3, -1, 1, Q("37.498152 mm")),
])
doc.recompute()
hole = body.newObject("PartDesign::Hole", "Hole")
hole.Profile = sketch9
hole.ThreadType = "None"
hole.Diameter = 5
hole.DepthType = "Dimension"
hole.Depth = 10
hole.DrillPoint = "Angled"
hole.DrillPointAngle = 123

# Sketch on XY plane
sketch10 = body.newObject("Sketcher::SketchObject", "Sketch009")
sketch10.AttachmentSupport = (doc.getObject("XY_Plane"), [""])
sketch10.MapMode = "FlatFace"
sketch10.AttachmentOffset = App.Placement(Vector(0, 0, 90), App.Rotation())
sketch10.addGeometry(Part.Circle(Vector(-45, -20, 0), Vector(0, 0, 1), 5), False)
sketch10.addConstraint([
    Sketcher.Constraint("Diameter", 0, Q("10 mm")),
    Sketcher.Constraint("DistanceX", 0, 3, -1, 1, Q("45 mm")),
    Sketcher.Constraint("DistanceY", 0, 3, -1, 1, Q("20 mm")),
])
doc.recompute()
hole2 = body.newObject("PartDesign::Hole", "Hole001")
hole2.Profile = sketch10
hole2.ThreadType = "None"
hole2.Diameter = 10
hole2.DepthType = "Dimension"
hole2.Depth = 20
hole2.DrillPoint = "Angled"
hole2.DrillPointAngle = 123

doc.recompute()
